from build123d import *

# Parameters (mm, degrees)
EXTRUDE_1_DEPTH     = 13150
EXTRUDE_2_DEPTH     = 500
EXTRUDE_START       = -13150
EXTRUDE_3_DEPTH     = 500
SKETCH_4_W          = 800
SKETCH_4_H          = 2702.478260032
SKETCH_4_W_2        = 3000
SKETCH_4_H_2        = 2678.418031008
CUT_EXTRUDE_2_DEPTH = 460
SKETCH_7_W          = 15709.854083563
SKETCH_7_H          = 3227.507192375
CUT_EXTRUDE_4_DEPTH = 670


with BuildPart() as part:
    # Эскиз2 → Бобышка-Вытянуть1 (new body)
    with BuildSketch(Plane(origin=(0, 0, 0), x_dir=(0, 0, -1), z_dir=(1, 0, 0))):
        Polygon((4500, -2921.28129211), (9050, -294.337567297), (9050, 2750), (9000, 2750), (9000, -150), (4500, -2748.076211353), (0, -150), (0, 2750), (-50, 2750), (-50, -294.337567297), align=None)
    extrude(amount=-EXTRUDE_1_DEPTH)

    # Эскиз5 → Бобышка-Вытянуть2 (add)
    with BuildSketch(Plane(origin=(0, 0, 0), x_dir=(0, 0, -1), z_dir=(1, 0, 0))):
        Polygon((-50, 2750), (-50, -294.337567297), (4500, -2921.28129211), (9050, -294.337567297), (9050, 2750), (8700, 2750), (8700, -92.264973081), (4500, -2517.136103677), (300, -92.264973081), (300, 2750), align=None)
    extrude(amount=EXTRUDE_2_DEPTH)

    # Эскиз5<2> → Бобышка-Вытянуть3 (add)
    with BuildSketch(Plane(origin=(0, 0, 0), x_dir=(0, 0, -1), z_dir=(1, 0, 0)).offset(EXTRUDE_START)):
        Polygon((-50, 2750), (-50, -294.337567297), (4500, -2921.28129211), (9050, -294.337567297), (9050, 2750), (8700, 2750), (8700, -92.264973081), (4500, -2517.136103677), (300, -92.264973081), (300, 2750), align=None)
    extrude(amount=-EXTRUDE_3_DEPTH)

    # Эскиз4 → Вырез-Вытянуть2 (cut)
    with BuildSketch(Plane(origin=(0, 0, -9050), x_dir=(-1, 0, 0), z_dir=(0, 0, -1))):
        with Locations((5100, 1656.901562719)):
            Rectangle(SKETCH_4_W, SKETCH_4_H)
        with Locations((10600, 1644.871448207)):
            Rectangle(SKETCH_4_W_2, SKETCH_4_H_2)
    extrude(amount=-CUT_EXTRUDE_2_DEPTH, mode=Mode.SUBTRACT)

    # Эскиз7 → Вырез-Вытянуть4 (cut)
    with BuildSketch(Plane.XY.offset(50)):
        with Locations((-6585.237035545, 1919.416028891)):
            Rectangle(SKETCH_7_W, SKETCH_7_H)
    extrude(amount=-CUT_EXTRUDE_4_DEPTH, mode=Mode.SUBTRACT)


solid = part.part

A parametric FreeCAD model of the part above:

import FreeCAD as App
import Part
import Sketcher

V = App.Vector
Q = App.Units.Quantity


def add_polygon(sketch, points):
    """Adds a closed chain of lines whose ends are joined by coincident constraints."""
    first, n = sketch.GeometryCount, len(points)
    for a, b in zip(points, points[1:] + points[:1]):
        sketch.addGeometry(Part.LineSegment(App.Vector(*a, 0), App.Vector(*b, 0)), False)
    for i in range(n):
        sketch.addConstraint(Sketcher.Constraint("Coincident", first + i, 2, first + (i + 1) % n, 1))

doc = App.newDocument("Part")
params = doc.addObject("Spreadsheet::Sheet", "Params")
for row, (alias, value) in enumerate([
    ("sketch1_width", "2900 mm"),
    ("sketch1_height", "50 mm"),
    ("pad1_length", "13150 mm"),
    ("sketch2_height", "350 mm"),
    ("pad2_length", "500 mm"),
    ("sketch3_height", "350 mm"),
    ("pad3_length", "500 mm"),
    ("sketch4_width", "800 mm"),
    ("sketch4_width2", "3000 mm"),
    ("pocket1_length", "460 mm"),
    ("pocket2_length", "670 mm"),
], start=1):
    params.set(f"A{row}", alias)
    params.set(f"B{row}", "=" + value)
    params.setAlias(f"B{row}", alias)

body = doc.addObject("PartDesign::Body", "Body")

# Sketch on YZ plane
sketch1 = body.newObject("Sketcher::SketchObject", "Sketch")
sketch1.AttachmentSupport = (doc.getObject("YZ_Plane"), [""])
sketch1.MapMode = "FlatFace"
add_polygon(sketch1, [(-2921.281292, -4500), (-294.337567, -9050), (2750, -9050), (2750, -9000), (-150, -9000), (-2748.076211, -4500), (-150, 0), (2750, 0), (2750, 50), (-294.337567, 50)])  # lines 0-9
sketch1.addConstraint([
    Sketcher.Constraint("Horizontal", 1),
    Sketcher.Constraint("Vertical", 2),
    Sketcher.Constraint("Horizontal", 3),
    Sketcher.Constraint("Horizontal", 6),
    Sketcher.Constraint("Vertical", 7),
    Sketcher.Constraint("Horizontal", 8),
    Sketcher.Constraint("PointOnObject", 5, 2, -1),
    Sketcher.Constraint("Parallel", 0, 4),
    Sketcher.Constraint("Parallel", 5, 9),
    Sketcher.Constraint("Horizontal", 4, 2, 9, 2),
    Sketcher.Constraint("Vertical", 3, 2, 5, 2),
    Sketcher.Constraint("Vertical", 2, 2, 6, 2),
    Sketcher.Constraint("Vertical", 0, 2, 8, 2),
    Sketcher.Constraint("Equal", 2, 7),
    Sketcher.Constraint("DistanceX", 3, 2, 3, 1, 2900.0),
    Sketcher.Constraint("DistanceY", 2, 1, 2, 2, 50.0),
    Sketcher.Constraint("Angle", 0, Q("-60 deg")),
    Sketcher.Constraint("DistanceY", 0, 2, -1, 1, 9050.0),
    Sketcher.Constraint("DistanceX", -1, 1, 1, 2, 2750.0),
    Sketcher.Constraint("DistanceX", 1, 1, 1, 2, 3044.337567),
])
sketch1.setExpression("Constraints[24]", "Params.sketch1_width")
sketch1.setExpression("Constraints[25]", "Params.sketch1_height")
pad1 = body.newObject("PartDesign::Pad", "Pad")
pad1.Profile = sketch1
pad1.setExpression("Length", "Params.pad1_length")
pad1.Reversed = True

# Sketch on YZ plane
sketch2 = body.newObject("Sketcher::SketchObject", "Sketch001")
sketch2.AttachmentSupport = (doc.getObject("YZ_Plane"), [""])
sketch2.MapMode = "FlatFace"
add_polygon(sketch2, [(2750, 50), (-294.337567, 50), (-2921.281292, -4500), (-294.337567, -9050), (2750, -9050), (2750, -8700), (-92.264973, -8700), (-2517.136104, -4500), (-92.264973, -300), (2750, -300)])  # lines 0-9
sketch2.addConstraint([
    Sketcher.Constraint("Horizontal", 0),
    Sketcher.Constraint("Horizontal", 3),
    Sketcher.Constraint("Vertical", 4),
    Sketcher.Constraint("Horizontal", 5),
    Sketcher.Constraint("Horizontal", 8),
    Sketcher.Constraint("Vertical", 9),
    Sketcher.Constraint("Parallel", 2, 6),
    Sketcher.Constraint("Parallel", 1, 7),
    Sketcher.Constraint("Horizontal", 1, 2, 6, 2),
    Sketcher.Constraint("Vertical", 0, 2, 2, 2),
    Sketcher.Constraint("Vertical", 5, 2, 7, 2),
    Sketcher.Constraint("Vertical", 4, 2, 8, 2),
    Sketcher.Constraint("Equal", 4, 9),
    Sketcher.Constraint("DistanceY", 4, 1, 4, 2, 350.0),
    Sketcher.Constraint("Angle", 1, Q("-120 deg")),
    Sketcher.Constraint("DistanceY", -1, 1, 0, 2, 50.0),
    Sketcher.Constraint("DistanceY", 1, 2, -1, 1, 4500.0),
    Sketcher.Constraint("DistanceX", -1, 1, 3, 2, 2750.0),
    Sketcher.Constraint("DistanceX", 0, 2, 0, 1, 3044.337567),
    Sketcher.Constraint("DistanceX", 5, 2, 5, 1, 2842.264973),
])
sketch2.setExpression("Constraints[23]", "Params.sketch2_height")
pad2 = body.newObject("PartDesign::Pad", "Pad001")
pad2.Profile = sketch2
pad2.setExpression("Length", "Params.pad2_length")

# Sketch on YZ plane
sketch3 = body.newObject("Sketcher::SketchObject", "Sketch002")
sketch3.AttachmentSupport = (doc.getObject("YZ_Plane"), [""])
sketch3.MapMode = "FlatFace"
sketch3.AttachmentOffset = App.Placement(V(0, 0, -13150), App.Rotation())
add_polygon(sketch3, [(2750, 50), (-294.337567, 50), (-2921.281292, -4500), (-294.337567, -9050), (2750, -9050), (2750, -8700), (-92.264973, -8700), (-2517.136104, -4500), (-92.264973, -300), (2750, -300)])  # lines 0-9
sketch3.addConstraint([
    Sketcher.Constraint("Horizontal", 0),
    Sketcher.Constraint("Horizontal", 3),
    Sketcher.Constraint("Vertical", 4),
    Sketcher.Constraint("Horizontal", 5),
    Sketcher.Constraint("Horizontal", 8),
    Sketcher.Constraint("Vertical", 9),
    Sketcher.Constraint("Parallel", 2, 6),
    Sketcher.Constraint("Parallel", 1, 7),
    Sketcher.Constraint("Horizontal", 1, 2, 6, 2),
    Sketcher.Constraint("Vertical", 0, 2, 2, 2),
    Sketcher.Constraint("Vertical", 5, 2, 7, 2),
    Sketcher.Constraint("Vertical", 4, 2, 8, 2),
    Sketcher.Constraint("Equal", 4, 9),
    Sketcher.Constraint("DistanceY", 4, 1, 4, 2, 350.0),
    Sketcher.Constraint("Angle", 1, Q("-120 deg")),
    Sketcher.Constraint("DistanceY", -1, 1, 0, 2, 50.0),
    Sketcher.Constraint("DistanceY", 1, 2, -1, 1, 4500.0),
    Sketcher.Constraint("DistanceX", -1, 1, 3, 2, 2750.0),
    Sketcher.Constraint("DistanceX", 0, 2, 0, 1, 3044.337567),
    Sketcher.Constraint("DistanceX", 5, 2, 5, 1, 2842.264973),
])
sketch3.setExpression("Constraints[23]", "Params.sketch3_height")
pad3 = body.newObject("PartDesign::Pad", "Pad002")
pad3.Profile = sketch3
pad3.setExpression("Length", "Params.pad3_length")
pad3.Reversed = True

# Sketch on XY plane
sketch4 = body.newObject("Sketcher::SketchObject", "Sketch003")
sketch4.AttachmentSupport = (doc.getObject("XY_Plane"), [""])
sketch4.MapMode = "FlatFace"
sketch4.AttachmentOffset = App.Placement(V(0, 0, -9050), App.Rotation())
add_polygon(sketch4, [(-4700, 3008.140693), (-4700, 305.662433), (-5500, 305.662433), (-5500, 3008.140693)])  # lines 0-3
add_polygon(sketch4, [(-9100, 2984.080464), (-9100, 305.662433), (-12100, 305.662433), (-12100, 2984.080464)])  # lines 4-7
sketch4.addConstraint([
    Sketcher.Constraint("Vertical", 0),
    Sketcher.Constraint("Horizontal", 1),
    Sketcher.Constraint("Vertical", 2),
    Sketcher.Constraint("Horizontal", 3),
    Sketcher.Constraint("Vertical", 4),
    Sketcher.Constraint("Horizontal", 5),
    Sketcher.Constraint("Vertical", 6),
    Sketcher.Constraint("Horizontal", 7),
    Sketcher.Constraint("Horizontal", 1, 2, 4, 2),
    Sketcher.Constraint("DistanceX", 1, 2, 1, 1, 800.0),
    Sketcher.Constraint("DistanceX", 5, 2, 5, 1, 3000.0),
    Sketcher.Constraint("DistanceX", 0, 2, -1, 1, 4700.0),
    Sketcher.Constraint("DistanceX", 4, 2, -1, 1, 9100.0),
    Sketcher.Constraint("DistanceY", 0, 2, 0, 1, 2702.47826),
    Sketcher.Constraint("DistanceY", 4, 2, 4, 1, 2678.418031),
    Sketcher.Constraint("DistanceY", -1, 1, 0, 2, 305.662433),
])
sketch4.setExpression("Constraints[17]", "Params.sketch4_width")
sketch4.setExpression("Constraints[18]", "Params.sketch4_width2")
pocket1 = body.newObject("PartDesign::Pocket", "Pocket")
pocket1.Profile = sketch4
pocket1.setExpression("Length", "Params.pocket1_length")
pocket1.Reversed = True

# Sketch on XY plane
sketch5 = body.newObject("Sketcher::SketchObject", "Sketch004")
sketch5.AttachmentSupport = (doc.getObject("XY_Plane"), [""])
sketch5.MapMode = "FlatFace"
sketch5.AttachmentOffset = App.Placement(V(0, 0, 50), App.Rotation())
add_polygon(sketch5, [(-14440.164077, 3533.169625), (-14440.164077, 305.662433), (1269.690006, 305.662433), (1269.690006, 3533.169625)])  # lines 0-3
sketch5.addConstraint([
    Sketcher.Constraint("Vertical", 0),
    Sketcher.Constraint("Horizontal", 1),
    Sketcher.Constraint("Vertical", 2),
    Sketcher.Constraint("Horizontal", 3),
    Sketcher.Constraint("DistanceX", 1, 1, 1, 2, 15709.854084),
    Sketcher.Constraint("DistanceY", 0, 2, 0, 1, 3227.507192),
    Sketcher.Constraint("DistanceX", 0, 2, -1, 1, 14440.164077),
    Sketcher.Constraint("DistanceY", -1, 1, 0, 2, 305.662433),
])
pocket2 = body.newObject("PartDesign::Pocket", "Pocket001")
pocket2.Profile = sketch5
pocket2.setExpression("Length", "Params.pocket2_length")

doc.recompute()
